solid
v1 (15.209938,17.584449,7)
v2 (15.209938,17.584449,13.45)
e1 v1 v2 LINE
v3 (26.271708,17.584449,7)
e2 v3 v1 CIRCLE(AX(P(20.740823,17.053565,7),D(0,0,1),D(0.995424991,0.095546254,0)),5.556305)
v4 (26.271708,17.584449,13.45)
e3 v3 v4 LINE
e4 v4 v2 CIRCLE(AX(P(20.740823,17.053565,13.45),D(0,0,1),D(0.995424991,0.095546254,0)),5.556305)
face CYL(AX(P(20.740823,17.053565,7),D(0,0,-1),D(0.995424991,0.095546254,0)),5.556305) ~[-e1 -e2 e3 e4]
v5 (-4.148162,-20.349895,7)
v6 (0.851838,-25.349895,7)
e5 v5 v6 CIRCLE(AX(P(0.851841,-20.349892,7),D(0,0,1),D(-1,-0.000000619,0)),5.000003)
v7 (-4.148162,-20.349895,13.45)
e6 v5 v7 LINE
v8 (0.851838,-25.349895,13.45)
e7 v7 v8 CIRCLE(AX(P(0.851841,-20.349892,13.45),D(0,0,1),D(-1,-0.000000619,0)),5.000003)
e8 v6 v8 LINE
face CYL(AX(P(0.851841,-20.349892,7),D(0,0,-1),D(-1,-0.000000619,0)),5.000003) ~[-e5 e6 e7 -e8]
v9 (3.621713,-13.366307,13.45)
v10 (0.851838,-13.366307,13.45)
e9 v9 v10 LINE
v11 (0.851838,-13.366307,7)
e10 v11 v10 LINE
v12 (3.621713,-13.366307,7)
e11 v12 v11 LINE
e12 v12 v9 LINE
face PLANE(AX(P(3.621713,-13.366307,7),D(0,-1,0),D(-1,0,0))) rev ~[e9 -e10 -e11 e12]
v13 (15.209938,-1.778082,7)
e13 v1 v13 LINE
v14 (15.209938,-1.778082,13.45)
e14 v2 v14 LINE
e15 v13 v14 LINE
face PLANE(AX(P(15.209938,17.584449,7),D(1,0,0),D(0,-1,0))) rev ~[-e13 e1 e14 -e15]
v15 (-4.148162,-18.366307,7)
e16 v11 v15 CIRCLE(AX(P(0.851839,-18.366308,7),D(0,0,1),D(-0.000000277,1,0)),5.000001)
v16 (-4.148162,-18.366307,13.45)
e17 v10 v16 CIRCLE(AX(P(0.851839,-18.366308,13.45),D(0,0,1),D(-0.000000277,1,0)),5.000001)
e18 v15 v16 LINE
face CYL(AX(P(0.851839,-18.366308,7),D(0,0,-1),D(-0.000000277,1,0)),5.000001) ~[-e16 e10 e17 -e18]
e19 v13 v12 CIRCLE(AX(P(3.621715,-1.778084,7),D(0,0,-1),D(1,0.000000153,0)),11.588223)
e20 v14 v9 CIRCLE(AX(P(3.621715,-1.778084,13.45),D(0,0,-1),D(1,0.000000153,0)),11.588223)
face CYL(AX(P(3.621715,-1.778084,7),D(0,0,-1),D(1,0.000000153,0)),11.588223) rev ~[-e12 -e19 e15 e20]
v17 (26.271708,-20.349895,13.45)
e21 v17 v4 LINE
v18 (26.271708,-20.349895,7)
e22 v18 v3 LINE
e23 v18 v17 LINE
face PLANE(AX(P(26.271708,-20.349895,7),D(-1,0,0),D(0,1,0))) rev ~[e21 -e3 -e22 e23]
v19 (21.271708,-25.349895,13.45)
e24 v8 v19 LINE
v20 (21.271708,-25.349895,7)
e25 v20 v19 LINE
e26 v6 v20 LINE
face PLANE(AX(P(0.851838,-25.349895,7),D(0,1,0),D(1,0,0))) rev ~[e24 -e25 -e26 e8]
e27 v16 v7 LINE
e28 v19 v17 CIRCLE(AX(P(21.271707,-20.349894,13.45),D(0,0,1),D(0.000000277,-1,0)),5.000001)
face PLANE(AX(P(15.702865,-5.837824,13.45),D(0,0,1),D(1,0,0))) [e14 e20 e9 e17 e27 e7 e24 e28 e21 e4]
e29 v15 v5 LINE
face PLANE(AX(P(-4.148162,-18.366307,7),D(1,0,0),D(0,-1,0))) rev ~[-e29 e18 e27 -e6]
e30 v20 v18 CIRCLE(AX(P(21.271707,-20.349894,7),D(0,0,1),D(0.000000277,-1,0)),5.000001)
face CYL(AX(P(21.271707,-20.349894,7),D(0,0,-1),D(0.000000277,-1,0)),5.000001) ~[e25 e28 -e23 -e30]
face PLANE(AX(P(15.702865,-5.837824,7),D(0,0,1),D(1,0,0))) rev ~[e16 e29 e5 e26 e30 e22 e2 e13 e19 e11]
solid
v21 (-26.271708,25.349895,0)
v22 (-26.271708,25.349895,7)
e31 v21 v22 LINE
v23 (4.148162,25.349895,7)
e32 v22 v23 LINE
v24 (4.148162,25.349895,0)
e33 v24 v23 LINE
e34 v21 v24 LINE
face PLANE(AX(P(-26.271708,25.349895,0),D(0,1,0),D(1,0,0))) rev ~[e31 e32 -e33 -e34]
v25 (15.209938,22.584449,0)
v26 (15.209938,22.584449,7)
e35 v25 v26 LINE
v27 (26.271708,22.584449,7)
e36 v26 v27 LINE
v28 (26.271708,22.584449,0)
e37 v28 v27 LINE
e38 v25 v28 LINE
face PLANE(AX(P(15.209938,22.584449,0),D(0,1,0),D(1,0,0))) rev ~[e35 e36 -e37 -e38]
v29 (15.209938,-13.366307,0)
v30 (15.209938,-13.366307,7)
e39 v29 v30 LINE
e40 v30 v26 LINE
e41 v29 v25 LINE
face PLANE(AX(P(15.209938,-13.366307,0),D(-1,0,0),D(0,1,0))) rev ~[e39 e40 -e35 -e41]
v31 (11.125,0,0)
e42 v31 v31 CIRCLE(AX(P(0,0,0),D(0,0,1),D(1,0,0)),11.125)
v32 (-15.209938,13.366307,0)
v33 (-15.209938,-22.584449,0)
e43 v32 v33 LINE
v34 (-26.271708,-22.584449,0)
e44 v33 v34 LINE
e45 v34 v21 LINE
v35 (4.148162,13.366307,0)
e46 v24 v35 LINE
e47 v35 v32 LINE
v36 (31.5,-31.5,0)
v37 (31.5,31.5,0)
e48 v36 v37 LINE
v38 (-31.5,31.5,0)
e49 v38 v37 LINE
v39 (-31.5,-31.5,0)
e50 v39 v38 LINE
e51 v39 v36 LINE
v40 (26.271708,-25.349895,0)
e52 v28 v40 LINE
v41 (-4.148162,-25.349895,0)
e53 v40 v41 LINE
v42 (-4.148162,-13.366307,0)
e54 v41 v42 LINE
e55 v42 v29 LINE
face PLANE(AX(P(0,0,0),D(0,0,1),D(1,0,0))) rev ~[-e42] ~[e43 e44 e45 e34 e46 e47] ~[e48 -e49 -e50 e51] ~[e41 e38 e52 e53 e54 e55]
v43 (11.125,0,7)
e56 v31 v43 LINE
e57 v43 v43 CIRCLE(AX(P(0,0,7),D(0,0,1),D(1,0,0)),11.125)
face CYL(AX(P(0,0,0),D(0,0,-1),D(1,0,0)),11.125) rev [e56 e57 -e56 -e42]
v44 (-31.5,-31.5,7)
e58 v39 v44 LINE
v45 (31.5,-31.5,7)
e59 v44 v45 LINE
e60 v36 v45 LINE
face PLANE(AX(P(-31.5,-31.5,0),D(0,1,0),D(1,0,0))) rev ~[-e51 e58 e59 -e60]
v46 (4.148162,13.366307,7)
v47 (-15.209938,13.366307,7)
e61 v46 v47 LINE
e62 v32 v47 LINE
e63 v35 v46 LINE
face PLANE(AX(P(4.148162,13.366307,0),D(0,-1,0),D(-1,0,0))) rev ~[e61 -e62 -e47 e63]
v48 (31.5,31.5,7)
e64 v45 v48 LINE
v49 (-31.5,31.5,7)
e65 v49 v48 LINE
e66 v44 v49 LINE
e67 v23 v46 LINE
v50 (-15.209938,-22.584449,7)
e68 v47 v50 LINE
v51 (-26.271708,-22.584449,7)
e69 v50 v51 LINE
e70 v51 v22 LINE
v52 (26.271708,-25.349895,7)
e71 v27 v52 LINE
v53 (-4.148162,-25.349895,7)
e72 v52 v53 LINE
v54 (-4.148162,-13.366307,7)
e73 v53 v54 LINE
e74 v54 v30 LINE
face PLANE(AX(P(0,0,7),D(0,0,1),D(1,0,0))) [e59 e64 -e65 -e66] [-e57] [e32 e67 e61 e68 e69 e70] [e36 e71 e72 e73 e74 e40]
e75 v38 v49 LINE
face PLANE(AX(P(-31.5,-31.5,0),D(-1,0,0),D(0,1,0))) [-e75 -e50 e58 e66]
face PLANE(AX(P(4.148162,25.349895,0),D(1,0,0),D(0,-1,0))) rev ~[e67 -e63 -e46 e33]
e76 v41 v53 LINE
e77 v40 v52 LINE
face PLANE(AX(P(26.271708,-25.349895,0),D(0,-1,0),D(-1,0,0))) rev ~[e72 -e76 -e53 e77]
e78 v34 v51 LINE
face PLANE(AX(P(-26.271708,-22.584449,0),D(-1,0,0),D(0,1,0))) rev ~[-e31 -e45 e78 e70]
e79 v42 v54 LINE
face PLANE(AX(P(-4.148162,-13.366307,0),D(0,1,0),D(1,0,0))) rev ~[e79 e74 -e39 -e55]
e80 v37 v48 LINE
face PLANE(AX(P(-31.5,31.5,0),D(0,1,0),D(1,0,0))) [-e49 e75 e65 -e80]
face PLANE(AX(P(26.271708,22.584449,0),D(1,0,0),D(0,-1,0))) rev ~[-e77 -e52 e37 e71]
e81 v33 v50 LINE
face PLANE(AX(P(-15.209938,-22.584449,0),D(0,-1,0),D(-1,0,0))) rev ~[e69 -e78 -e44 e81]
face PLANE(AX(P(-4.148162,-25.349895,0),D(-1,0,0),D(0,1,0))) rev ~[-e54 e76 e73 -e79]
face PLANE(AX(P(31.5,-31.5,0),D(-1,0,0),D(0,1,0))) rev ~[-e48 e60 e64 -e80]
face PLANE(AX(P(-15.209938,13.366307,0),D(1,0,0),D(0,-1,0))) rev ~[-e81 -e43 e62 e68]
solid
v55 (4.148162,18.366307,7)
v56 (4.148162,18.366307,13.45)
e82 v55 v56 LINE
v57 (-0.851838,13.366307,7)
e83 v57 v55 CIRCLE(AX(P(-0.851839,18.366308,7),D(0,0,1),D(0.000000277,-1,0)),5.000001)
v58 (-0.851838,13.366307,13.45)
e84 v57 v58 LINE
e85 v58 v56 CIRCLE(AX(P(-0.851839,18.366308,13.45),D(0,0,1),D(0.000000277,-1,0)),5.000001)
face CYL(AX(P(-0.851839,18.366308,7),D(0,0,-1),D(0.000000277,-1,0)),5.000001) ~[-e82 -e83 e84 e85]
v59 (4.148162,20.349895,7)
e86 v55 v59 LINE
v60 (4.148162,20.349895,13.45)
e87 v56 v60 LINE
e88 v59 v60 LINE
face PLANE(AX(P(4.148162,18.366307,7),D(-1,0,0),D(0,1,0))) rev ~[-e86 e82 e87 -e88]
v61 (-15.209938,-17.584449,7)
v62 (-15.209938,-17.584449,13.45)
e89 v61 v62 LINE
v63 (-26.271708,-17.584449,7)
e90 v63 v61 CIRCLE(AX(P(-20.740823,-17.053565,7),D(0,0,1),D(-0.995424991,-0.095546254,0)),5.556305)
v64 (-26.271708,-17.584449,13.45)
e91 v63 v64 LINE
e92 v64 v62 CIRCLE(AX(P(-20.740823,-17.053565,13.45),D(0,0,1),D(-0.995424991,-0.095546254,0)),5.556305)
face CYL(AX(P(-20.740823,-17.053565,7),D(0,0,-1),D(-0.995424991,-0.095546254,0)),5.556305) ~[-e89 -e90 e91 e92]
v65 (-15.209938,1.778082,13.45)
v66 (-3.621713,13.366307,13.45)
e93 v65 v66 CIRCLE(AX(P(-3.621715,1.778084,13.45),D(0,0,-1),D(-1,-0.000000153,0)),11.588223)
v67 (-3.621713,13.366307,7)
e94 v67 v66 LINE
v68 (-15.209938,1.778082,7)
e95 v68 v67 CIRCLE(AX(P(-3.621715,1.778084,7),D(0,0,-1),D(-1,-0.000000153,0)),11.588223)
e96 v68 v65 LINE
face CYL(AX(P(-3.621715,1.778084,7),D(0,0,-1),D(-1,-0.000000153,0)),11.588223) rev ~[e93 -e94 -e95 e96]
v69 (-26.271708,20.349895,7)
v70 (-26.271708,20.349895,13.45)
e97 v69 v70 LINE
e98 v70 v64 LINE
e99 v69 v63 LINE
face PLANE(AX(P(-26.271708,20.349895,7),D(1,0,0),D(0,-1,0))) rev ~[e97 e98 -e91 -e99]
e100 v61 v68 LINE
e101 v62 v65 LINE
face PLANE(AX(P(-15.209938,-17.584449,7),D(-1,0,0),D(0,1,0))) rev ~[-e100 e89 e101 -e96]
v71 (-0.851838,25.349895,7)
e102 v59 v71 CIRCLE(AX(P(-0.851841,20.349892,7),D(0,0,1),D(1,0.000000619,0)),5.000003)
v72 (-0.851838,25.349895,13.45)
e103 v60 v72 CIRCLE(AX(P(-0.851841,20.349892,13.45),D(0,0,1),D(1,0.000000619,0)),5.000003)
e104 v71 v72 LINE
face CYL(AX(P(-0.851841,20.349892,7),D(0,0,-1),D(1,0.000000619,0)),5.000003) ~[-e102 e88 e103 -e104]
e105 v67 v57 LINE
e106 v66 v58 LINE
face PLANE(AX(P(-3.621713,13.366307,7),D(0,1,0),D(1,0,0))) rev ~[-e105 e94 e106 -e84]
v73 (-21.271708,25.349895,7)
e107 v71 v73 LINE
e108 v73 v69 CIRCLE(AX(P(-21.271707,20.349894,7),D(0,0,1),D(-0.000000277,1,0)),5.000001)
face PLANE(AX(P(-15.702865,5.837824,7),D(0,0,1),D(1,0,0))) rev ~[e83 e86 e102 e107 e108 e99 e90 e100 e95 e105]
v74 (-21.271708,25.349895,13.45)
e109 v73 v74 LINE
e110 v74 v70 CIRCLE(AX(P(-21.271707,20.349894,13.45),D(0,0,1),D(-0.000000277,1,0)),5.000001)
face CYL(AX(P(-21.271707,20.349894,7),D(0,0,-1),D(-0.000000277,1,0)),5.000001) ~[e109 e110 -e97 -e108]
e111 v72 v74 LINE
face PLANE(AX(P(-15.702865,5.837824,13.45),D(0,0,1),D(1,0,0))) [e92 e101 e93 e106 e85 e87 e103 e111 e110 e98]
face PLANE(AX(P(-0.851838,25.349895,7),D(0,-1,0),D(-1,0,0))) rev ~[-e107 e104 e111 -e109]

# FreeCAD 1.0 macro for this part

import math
import FreeCAD as App
import Part
import Sketcher
from FreeCAD import Vector
Q = App.Units.Quantity


def add_polygon(sketch, points):
    """Adds a closed chain of lines whose ends are joined by coincident constraints."""
    first, n = sketch.GeometryCount, len(points)
    for a, b in zip(points, points[1:] + points[:1]):
        sketch.addGeometry(Part.LineSegment(App.Vector(*a, 0), App.Vector(*b, 0)), False)
    for i in range(n):
        sketch.addConstraint(Sketcher.Constraint("Coincident", first + i, 2, first + (i + 1) % n, 1))

doc = App.newDocument("Part")
body = doc.addObject("PartDesign::Body", "Body")

# Sketch on XY plane
sketch1 = body.newObject("Sketcher::SketchObject", "Sketch")
sketch1.AttachmentSupport = (doc.getObject("XY_Plane"), [""])
sketch1.MapMode = "FlatFace"
add_polygon(sketch1, [(-32, 32), (-32, -32), (32, -32), (32, 32)])  # lines 0-3
add_polygon(sketch1, [(26, 23), (26, -25), (-4, -25), (-4, -13), (15, -13), (15, 23)])  # lines 4-9
add_polygon(sketch1, [(-15, -23), (-26, -23), (-26, 25), (4, 25), (4, 13), (-15, 13)])  # lines 10-15
sketch1.addGeometry(Part.Circle(Vector(0, 0, 0), Vector(0, 0, 1), 11), False)  # 16
sketch1.addConstraint([
    Sketcher.Constraint("Vertical", 0),
    Sketcher.Constraint("Horizontal", 1),
    Sketcher.Constraint("Vertical", 2),
    Sketcher.Constraint("Horizontal", 3),
    Sketcher.Constraint("Vertical", 4),
    Sketcher.Constraint("Horizontal", 5),
    Sketcher.Constraint("Vertical", 6),
    Sketcher.Constraint("Horizontal", 7),
    Sketcher.Constraint("Vertical", 8),
    Sketcher.Constraint("Horizontal", 9),
    Sketcher.Constraint("Horizontal", 10),
    Sketcher.Constraint("Vertical", 11),
    Sketcher.Constraint("Horizontal", 12),
    Sketcher.Constraint("Vertical", 13),
    Sketcher.Constraint("Horizontal", 14),
    Sketcher.Constraint("Vertical", 15),
    Sketcher.Constraint("Coincident", 16, 3, -1, 1),
    Sketcher.Constraint("Symmetric", 0, 2, 2, 2, -1, 1),
    Sketcher.Constraint("Symmetric", 9, 2, 10, 2, -1, 1),
    Sketcher.Constraint("Symmetric", 5, 2, 12, 2, -1, 1),
    Sketcher.Constraint("Symmetric", 7, 2, 14, 2, -1, 1),
    Sketcher.Constraint("Equal", 3, 0),
    Sketcher.Constraint("Diameter", 16, Q("22.25 mm")),
    Sketcher.Constraint("DistanceX", 1, 1, 1, 2, Q("63 mm")),
    Sketcher.Constraint("DistanceX", 7, 1, 7, 2, Q("19.3581 mm")),
    Sketcher.Constraint("DistanceX", 5, 2, 5, 1, Q("30.41987 mm")),
    Sketcher.Constraint("DistanceY", 4, 2, 4, 1, Q("47.934344 mm")),
    Sketcher.Constraint("DistanceY", 6, 1, 6, 2, Q("11.983588 mm")),
    Sketcher.Constraint("DistanceX", -1, 1, 4, 2, Q("26.271708 mm")),
    Sketcher.Constraint("DistanceY", -1, 1, 8, 2, Q("22.584449 mm")),
])
pad1 = body.newObject("PartDesign::Pad", "Pad")
pad1.Profile = sketch1
pad1.Length = 7
body2 = doc.addObject("PartDesign::Body", "Body001")
body2.AllowCompound = True

# Sketch on XY plane
sketch2 = body2.newObject("Sketcher::SketchObject", "Sketch001")
sketch2.AttachmentSupport = (doc.getObject("XY_Plane001"), [""])
sketch2.MapMode = "FlatFace"
sketch2.AttachmentOffset = App.Placement(Vector(0, 0, 7), App.Rotation())
sketch2.addGeometry([
    Part.ArcOfCircle(Part.Circle(Vector(-21.3, 20.3, 0), Vector(0, 0, 1), 5), math.radians(90), math.radians(180)),  # 0
    Part.LineSegment(Vector(-26.3, 20.3, 0), Vector(-26.3, -17.6, 0)),  # 1
    Part.ArcOfCircle(Part.Circle(Vector(-20.7, -17.1, 0), Vector(0, 0, 1), 5.6), math.radians(-175), math.radians(-5)),  # 2
    Part.LineSegment(Vector(-15.2, -17.6, 0), Vector(-15.2, 1.8, 0)),  # 3
    Part.ArcOfCircle(Part.Circle(Vector(-3.6, 1.8, 0), Vector(0, 0, 1), 11.6), math.radians(90), math.radians(180)),  # 4
    Part.LineSegment(Vector(-3.6, 13.4, 0), Vector(-0.9, 13.4, 0)),  # 5
    Part.ArcOfCircle(Part.Circle(Vector(-0.9, 18.4, 0), Vector(0, 0, 1), 5), math.radians(-90), math.radians(0)),  # 6
    Part.LineSegment(Vector(4.1, 18.4, 0), Vector(4.1, 20.3, 0)),  # 7
    Part.ArcOfCircle(Part.Circle(Vector(-0.9, 20.3, 0), Vector(0, 0, 1), 5), math.radians(0), math.radians(90)),  # 8
    Part.LineSegment(Vector(-0.9, 25.3, 0), Vector(-21.3, 25.3, 0)),  # 9
    Part.LineSegment(Vector(3.6, -13.4, 0), Vector(0.9, -13.4, 0)),  # 10
    Part.ArcOfCircle(Part.Circle(Vector(0.9, -18.4, 0), Vector(0, 0, 1), 5), math.radians(90), math.radians(180)),  # 11
    Part.LineSegment(Vector(-4.1, -18.4, 0), Vector(-4.1, -20.3, 0)),  # 12
    Part.ArcOfCircle(Part.Circle(Vector(0.9, -20.3, 0), Vector(0, 0, 1), 5), math.radians(-180), math.radians(-90)),  # 13
    Part.LineSegment(Vector(0.9, -25.3, 0), Vector(21.3, -25.3, 0)),  # 14
    Part.ArcOfCircle(Part.Circle(Vector(21.3, -20.3, 0), Vector(0, 0, 1), 5), math.radians(-90), math.radians(0)),  # 15
    Part.LineSegment(Vector(26.3, -20.3, 0), Vector(26.3, 17.6, 0)),  # 16
    Part.ArcOfCircle(Part.Circle(Vector(20.7, 17.1, 0), Vector(0, 0, 1), 5.6), math.radians(5), math.radians(175)),  # 17
    Part.LineSegment(Vector(15.2, 17.6, 0), Vector(15.2, -1.8, 0)),  # 18
    Part.ArcOfCircle(Part.Circle(Vector(3.6, -1.8, 0), Vector(0, 0, 1), 11.6), math.radians(-90), math.radians(0)),  # 19
], False)
sketch2.addConstraint([
    Sketcher.Constraint("Tangent", 0, 2, 1, 1),
    Sketcher.Constraint("Coincident", 1, 2, 2, 1),
    Sketcher.Constraint("Coincident", 2, 2, 3, 1),
    Sketcher.Constraint("Tangent", 3, 2, 4, 2),
    Sketcher.Constraint("Tangent", 4, 1, 5, 1),
    Sketcher.Constraint("Tangent", 5, 2, 6, 1),
    Sketcher.Constraint("Tangent", 6, 2, 7, 1),
    Sketcher.Constraint("Tangent", 7, 2, 8, 1),
    Sketcher.Constraint("Tangent", 8, 2, 9, 1),
    Sketcher.Constraint("Tangent", 9, 2, 0, 1),
    Sketcher.Constraint("Tangent", 10, 2, 11, 1),
    Sketcher.Constraint("Tangent", 11, 2, 12, 1),
    Sketcher.Constraint("Tangent", 12, 2, 13, 1),
    Sketcher.Constraint("Tangent", 13, 2, 14, 1),
    Sketcher.Constraint("Tangent", 14, 2, 15, 1),
    Sketcher.Constraint("Tangent", 15, 2, 16, 1),
    Sketcher.Constraint("Coincident", 16, 2, 17, 1),
    Sketcher.Constraint("Coincident", 17, 2, 18, 1),
    Sketcher.Constraint("Tangent", 18, 2, 19, 2),
    Sketcher.Constraint("Tangent", 19, 1, 10, 1),
    Sketcher.Constraint("Vertical", 1),
    Sketcher.Constraint("Vertical", 3),
    Sketcher.Constraint("Horizontal", 5),
    Sketcher.Constraint("Vertical", 7),
    Sketcher.Constraint("Horizontal", 9),
    Sketcher.Constraint("Horizontal", 10),
    Sketcher.Constraint("Vertical", 12),
    Sketcher.Constraint("Horizontal", 14),
    Sketcher.Constraint("Vertical", 16),
    Sketcher.Constraint("Vertical", 18),
    Sketcher.Constraint("Equal", 0, 6),
    Sketcher.Constraint("Equal", 6, 8),
    Sketcher.Constraint("Equal", 8, 11),
    Sketcher.Constraint("Equal", 11, 13),
    Sketcher.Constraint("Equal", 13, 15),
    Sketcher.Constraint("Equal", 2, 17),
    Sketcher.Constraint("Equal", 4, 19),
    Sketcher.Constraint("Symmetric", 6, 3, 11, 3, -1, 1),
    Sketcher.Constraint("Symmetric", 0, 3, 15, 3, -1, 1),
    Sketcher.Constraint("Symmetric", 2, 3, 17, 3, -1, 1),
    Sketcher.Constraint("Horizontal", 1, 2, 2, 2),
    Sketcher.Constraint("Horizontal", 16, 2, 17, 2),
    Sketcher.Constraint("Radius", 0, Q("5.000001 mm")),
    Sketcher.Constraint("Radius", 2, Q("5.556305 mm")),
    Sketcher.Constraint("Radius", 4, Q("11.588223 mm")),
    Sketcher.Constraint("DistanceX", 9, 2, 9, 1, Q("20.41987 mm")),
    Sketcher.Constraint("DistanceY", 3, 1, 3, 2, Q("19.362531 mm")),
    Sketcher.Constraint("DistanceY", 7, 1, 7, 2, Q("1.983588 mm")),
    Sketcher.Constraint("DistanceY", 11, 3, 8, 3, Q("38.7162 mm")),
    Sketcher.Constraint("DistanceX", 10, 2, 18, 2, Q("14.3581 mm")),
    Sketcher.Constraint("DistanceX", 6, 3, -1, 1, Q("0.851839 mm")),
])
pad2 = body2.newObject("PartDesign::Pad", "Pad001")
pad2.Profile = sketch2
pad2.Length = 6.45

doc.recompute()
